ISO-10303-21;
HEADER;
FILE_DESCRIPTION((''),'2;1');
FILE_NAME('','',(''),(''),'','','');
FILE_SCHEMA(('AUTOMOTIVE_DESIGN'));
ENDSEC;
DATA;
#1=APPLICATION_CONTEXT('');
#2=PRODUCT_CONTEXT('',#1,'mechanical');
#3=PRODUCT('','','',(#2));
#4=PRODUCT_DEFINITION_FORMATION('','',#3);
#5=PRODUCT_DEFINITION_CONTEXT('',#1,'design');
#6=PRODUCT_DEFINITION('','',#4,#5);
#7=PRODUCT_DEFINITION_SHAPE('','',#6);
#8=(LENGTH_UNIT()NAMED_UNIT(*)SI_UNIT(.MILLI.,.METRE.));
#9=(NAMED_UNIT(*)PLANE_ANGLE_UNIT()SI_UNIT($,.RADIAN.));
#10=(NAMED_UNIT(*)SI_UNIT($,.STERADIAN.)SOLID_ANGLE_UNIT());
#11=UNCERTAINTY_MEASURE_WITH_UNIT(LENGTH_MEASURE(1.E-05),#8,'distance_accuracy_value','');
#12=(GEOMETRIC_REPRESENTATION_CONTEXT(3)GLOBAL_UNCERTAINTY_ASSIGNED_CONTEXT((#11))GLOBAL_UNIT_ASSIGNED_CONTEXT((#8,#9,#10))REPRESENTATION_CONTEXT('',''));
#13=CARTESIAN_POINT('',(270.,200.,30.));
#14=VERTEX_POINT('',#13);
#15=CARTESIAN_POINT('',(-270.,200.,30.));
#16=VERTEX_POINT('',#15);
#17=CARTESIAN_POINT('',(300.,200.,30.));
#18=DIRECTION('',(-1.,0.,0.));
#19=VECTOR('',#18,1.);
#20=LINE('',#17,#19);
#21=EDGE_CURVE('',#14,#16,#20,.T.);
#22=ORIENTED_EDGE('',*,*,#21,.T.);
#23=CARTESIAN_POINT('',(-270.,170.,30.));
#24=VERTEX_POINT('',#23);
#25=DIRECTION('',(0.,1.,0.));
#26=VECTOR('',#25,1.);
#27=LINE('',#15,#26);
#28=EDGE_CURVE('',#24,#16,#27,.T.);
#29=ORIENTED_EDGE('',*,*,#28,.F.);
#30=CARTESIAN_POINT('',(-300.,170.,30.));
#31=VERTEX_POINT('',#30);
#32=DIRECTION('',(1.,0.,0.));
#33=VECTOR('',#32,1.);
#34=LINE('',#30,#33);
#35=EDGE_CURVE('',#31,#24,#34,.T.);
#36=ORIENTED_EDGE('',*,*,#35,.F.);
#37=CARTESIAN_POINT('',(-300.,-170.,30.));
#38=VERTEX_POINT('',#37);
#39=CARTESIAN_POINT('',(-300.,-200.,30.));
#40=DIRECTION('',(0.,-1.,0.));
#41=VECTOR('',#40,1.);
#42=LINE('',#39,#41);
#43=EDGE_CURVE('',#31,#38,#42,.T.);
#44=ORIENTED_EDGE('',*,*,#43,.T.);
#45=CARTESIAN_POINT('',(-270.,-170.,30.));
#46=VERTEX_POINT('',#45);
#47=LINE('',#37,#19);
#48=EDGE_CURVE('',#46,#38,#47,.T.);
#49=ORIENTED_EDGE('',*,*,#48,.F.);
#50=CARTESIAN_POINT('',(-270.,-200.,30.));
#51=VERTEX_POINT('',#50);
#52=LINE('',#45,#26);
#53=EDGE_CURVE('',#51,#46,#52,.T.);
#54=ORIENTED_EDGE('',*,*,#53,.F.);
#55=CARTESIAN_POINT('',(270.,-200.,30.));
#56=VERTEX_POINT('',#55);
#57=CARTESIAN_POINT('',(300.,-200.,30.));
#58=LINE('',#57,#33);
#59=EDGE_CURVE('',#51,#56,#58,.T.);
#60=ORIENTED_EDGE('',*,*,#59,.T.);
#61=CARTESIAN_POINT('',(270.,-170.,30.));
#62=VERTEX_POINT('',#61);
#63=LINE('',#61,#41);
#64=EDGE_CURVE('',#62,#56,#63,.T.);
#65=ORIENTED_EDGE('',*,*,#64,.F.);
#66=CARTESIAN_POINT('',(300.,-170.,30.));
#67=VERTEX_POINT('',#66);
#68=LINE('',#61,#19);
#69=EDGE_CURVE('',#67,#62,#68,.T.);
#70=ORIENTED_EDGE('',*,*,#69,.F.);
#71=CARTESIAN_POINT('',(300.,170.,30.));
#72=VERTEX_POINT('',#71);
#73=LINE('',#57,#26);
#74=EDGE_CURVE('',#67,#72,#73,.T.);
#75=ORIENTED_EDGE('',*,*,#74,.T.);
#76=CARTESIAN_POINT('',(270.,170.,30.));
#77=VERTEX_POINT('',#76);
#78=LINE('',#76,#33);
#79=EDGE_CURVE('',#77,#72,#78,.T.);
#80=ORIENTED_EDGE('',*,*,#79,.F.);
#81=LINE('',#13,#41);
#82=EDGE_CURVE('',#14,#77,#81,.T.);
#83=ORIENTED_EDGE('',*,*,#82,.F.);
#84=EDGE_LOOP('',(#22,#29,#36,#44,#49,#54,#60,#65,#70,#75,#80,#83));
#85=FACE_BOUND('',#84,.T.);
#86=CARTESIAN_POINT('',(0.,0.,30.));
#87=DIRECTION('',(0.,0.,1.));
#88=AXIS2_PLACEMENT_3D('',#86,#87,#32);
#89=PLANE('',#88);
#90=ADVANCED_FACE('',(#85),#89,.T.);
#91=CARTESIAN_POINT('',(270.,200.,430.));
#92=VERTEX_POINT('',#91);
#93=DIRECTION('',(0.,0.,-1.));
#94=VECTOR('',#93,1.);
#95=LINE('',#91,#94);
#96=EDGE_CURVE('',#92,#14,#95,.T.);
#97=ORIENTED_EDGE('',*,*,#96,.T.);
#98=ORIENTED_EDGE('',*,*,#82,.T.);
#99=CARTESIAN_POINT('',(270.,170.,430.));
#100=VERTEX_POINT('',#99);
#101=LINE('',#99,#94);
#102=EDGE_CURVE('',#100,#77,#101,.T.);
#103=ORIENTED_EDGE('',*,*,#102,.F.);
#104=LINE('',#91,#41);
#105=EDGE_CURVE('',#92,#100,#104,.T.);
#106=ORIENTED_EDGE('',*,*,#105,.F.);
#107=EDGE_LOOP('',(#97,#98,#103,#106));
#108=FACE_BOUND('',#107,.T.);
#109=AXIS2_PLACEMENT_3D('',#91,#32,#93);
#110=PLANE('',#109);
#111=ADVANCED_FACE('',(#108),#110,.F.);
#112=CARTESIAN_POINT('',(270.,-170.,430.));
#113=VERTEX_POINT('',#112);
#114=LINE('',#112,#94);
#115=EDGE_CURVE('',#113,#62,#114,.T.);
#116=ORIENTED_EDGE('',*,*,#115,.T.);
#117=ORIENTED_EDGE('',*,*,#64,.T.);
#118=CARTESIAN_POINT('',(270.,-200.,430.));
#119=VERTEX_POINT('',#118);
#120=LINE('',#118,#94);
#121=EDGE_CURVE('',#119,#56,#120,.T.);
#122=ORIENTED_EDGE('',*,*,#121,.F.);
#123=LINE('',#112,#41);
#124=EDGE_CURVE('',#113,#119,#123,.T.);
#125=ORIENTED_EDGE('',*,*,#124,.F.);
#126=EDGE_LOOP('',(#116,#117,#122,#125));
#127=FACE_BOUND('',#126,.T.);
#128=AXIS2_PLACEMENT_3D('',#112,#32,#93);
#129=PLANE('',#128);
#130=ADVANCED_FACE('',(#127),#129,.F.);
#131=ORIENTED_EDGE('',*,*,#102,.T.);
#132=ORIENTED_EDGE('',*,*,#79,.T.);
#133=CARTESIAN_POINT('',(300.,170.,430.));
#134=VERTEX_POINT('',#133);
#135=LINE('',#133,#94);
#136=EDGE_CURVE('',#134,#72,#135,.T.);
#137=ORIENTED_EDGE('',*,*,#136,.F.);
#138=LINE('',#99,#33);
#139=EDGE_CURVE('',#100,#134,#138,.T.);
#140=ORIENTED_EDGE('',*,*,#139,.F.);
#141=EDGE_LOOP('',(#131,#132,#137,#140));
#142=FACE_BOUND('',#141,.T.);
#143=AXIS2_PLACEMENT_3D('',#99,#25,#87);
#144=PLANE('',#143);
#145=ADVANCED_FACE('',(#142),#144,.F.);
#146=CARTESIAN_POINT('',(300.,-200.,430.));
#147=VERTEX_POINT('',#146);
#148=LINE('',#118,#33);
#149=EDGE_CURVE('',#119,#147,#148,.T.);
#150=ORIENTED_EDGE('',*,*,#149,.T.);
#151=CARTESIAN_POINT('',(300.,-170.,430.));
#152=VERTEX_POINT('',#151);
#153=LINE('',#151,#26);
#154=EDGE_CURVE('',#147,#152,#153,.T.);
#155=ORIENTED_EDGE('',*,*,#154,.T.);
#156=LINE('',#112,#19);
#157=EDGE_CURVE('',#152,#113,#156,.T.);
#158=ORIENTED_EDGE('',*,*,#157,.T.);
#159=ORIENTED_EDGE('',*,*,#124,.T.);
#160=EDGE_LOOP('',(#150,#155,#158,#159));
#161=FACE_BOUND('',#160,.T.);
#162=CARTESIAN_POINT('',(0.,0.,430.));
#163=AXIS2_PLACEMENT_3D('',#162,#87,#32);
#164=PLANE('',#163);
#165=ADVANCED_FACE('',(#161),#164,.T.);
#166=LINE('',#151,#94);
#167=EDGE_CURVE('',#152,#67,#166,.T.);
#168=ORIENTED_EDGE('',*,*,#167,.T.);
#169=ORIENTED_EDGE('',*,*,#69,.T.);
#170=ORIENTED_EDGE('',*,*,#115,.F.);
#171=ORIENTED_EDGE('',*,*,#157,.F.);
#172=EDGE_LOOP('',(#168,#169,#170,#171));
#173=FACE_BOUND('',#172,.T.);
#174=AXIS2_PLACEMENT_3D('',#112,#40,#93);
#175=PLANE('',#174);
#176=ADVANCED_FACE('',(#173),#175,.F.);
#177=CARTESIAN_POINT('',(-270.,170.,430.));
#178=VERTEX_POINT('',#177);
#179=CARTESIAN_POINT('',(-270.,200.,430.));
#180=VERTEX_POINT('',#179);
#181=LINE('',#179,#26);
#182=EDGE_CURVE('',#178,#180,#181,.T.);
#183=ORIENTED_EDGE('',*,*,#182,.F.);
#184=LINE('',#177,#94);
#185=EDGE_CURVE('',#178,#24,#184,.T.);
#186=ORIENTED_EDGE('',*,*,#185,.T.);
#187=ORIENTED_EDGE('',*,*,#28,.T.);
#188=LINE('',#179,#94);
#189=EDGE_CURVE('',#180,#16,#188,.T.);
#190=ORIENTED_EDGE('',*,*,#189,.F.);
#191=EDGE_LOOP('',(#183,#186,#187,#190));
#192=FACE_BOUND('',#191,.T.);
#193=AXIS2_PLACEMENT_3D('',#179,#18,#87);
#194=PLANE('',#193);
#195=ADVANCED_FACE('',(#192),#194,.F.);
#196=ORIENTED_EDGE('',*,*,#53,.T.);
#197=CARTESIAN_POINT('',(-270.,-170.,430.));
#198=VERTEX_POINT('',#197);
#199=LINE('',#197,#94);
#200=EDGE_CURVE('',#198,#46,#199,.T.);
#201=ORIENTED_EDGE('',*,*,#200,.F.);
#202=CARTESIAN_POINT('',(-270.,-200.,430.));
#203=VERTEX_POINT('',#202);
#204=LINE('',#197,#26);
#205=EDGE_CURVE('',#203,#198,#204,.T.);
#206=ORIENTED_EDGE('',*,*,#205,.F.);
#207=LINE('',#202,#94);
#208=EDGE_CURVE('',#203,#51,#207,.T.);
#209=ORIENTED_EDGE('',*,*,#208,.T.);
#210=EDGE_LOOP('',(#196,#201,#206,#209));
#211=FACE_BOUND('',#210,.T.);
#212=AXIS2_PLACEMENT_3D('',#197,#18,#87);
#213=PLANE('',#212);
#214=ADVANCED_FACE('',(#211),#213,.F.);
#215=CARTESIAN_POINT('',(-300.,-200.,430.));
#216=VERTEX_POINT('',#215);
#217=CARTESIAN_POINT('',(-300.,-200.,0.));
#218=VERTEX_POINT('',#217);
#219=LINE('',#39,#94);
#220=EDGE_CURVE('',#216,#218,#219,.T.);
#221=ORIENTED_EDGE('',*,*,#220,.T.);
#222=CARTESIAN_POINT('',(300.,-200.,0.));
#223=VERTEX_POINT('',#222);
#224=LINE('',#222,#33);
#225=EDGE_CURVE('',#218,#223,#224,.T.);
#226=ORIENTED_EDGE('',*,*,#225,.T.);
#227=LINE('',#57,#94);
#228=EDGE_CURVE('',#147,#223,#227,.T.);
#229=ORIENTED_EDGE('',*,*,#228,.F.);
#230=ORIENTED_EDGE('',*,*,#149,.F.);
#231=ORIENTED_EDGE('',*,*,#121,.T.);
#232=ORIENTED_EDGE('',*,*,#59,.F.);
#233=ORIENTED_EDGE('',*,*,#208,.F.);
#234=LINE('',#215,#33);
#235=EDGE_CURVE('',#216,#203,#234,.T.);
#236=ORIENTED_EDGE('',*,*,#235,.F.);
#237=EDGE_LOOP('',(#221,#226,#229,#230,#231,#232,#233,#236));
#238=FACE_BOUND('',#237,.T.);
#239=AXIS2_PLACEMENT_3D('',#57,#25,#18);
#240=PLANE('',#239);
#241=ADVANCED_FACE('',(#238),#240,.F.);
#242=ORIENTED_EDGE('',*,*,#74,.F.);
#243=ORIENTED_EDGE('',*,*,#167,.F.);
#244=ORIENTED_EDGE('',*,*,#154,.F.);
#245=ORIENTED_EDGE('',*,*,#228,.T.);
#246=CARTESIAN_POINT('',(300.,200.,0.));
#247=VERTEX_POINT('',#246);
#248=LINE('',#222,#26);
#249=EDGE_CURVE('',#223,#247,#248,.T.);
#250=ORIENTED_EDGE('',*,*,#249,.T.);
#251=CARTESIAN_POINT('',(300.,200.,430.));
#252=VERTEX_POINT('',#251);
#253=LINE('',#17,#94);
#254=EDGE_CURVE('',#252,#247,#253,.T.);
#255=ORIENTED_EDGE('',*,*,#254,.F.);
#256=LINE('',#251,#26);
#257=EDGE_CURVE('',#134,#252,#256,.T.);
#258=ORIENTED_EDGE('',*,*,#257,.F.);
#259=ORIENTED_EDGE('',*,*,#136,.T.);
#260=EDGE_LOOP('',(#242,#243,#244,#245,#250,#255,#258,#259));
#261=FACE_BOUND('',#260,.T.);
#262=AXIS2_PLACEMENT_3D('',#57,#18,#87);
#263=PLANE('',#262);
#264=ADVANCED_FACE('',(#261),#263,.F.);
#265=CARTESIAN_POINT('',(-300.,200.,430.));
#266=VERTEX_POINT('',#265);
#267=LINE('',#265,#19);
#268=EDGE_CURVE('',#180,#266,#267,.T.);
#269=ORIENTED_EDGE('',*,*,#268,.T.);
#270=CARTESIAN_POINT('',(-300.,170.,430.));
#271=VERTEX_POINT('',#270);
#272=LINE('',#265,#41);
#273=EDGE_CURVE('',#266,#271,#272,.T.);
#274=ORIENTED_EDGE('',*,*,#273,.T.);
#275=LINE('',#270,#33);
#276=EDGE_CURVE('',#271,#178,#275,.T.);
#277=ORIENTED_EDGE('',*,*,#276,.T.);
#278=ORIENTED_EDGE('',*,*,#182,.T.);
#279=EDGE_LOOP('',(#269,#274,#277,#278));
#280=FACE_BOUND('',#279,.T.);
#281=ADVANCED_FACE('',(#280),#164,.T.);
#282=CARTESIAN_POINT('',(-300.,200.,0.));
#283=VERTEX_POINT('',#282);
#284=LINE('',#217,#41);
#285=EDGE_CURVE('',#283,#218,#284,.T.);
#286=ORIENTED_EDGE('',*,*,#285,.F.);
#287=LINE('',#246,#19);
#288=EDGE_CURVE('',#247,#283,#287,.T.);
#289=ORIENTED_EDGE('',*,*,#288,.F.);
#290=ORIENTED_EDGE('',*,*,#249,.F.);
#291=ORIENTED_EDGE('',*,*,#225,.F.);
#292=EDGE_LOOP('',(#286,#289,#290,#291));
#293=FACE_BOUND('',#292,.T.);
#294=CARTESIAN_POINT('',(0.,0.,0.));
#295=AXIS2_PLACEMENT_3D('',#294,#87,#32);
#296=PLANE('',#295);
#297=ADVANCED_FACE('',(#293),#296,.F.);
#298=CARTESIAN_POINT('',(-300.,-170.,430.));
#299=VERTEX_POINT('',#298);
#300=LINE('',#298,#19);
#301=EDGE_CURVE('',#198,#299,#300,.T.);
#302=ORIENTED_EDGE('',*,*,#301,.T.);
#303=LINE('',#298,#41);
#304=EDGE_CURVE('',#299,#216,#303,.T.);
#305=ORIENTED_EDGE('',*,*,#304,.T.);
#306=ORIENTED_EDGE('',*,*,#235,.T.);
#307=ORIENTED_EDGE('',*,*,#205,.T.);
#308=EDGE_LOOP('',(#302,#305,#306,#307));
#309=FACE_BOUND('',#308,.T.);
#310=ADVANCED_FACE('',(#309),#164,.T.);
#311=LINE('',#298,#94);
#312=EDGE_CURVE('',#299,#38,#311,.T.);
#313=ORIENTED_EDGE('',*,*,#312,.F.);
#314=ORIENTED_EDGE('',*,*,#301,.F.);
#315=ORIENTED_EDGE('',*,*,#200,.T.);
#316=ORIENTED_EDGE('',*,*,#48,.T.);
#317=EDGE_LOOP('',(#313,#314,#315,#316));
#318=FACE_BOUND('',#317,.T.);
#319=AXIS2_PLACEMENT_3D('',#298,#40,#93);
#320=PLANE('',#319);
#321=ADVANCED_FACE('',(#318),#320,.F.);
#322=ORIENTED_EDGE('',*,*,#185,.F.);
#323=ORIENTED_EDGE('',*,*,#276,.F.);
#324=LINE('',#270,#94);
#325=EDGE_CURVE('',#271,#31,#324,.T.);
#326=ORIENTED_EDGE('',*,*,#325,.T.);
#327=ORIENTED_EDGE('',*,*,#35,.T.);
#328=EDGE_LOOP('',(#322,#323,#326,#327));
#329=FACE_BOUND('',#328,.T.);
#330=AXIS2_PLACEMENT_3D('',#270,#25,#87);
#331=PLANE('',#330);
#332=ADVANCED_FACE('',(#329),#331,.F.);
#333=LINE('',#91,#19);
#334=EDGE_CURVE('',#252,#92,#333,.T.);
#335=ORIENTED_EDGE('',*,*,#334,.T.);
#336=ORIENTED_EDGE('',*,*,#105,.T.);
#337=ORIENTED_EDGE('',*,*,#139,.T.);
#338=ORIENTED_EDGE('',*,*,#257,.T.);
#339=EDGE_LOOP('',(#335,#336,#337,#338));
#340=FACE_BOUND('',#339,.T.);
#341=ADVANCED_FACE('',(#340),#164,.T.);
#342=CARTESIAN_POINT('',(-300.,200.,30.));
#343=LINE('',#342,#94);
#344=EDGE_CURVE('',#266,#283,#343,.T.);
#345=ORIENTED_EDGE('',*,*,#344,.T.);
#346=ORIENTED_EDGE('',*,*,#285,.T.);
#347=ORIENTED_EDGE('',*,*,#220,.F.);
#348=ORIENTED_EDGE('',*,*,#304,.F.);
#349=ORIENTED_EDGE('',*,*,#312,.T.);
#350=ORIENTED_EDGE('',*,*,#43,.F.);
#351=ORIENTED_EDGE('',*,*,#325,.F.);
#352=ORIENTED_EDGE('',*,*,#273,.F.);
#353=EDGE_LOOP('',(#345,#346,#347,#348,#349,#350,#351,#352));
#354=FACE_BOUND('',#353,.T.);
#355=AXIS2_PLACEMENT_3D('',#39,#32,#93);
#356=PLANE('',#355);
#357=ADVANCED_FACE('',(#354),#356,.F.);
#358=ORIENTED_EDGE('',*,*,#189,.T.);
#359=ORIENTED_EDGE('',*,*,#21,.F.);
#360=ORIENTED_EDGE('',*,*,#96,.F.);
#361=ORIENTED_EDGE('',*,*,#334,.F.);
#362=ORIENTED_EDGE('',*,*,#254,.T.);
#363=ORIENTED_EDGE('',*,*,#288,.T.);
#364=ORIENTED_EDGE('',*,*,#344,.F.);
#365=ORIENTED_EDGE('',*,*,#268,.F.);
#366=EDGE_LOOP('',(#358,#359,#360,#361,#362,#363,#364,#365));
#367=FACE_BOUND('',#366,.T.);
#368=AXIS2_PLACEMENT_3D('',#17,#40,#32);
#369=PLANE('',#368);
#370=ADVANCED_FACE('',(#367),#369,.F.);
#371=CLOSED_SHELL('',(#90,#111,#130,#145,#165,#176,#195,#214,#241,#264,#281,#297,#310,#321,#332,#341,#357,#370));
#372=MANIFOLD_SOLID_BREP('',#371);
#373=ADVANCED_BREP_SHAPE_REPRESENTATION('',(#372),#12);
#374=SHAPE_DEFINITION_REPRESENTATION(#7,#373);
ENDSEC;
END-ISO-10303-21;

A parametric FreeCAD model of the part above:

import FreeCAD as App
import Part
import Sketcher
Q = App.Units.Quantity


def add_polygon(sketch, points):
    """Adds a closed chain of lines whose ends are joined by coincident constraints."""
    first, n = sketch.GeometryCount, len(points)
    for a, b in zip(points, points[1:] + points[:1]):
        sketch.addGeometry(Part.LineSegment(App.Vector(*a, 0), App.Vector(*b, 0)), False)
    for i in range(n):
        sketch.addConstraint(Sketcher.Constraint("Coincident", first + i, 2, first + (i + 1) % n, 1))

doc = App.newDocument("Part")
params = doc.addObject("Spreadsheet::Sheet", "Params")
for row, (alias, value) in enumerate([
    ("sketch1_width", "600 mm"),
    ("sketch1_height", "400 mm"),
    ("pad1_length", "30 mm"),
    ("sketch2_width", "30 mm"),
    ("pad2_length", "400 mm"),
], start=1):
    params.set(f"A{row}", alias)
    params.set(f"B{row}", "=" + value)
    params.setAlias(f"B{row}", alias)

body = doc.addObject("PartDesign::Body", "Body")

# Sketch on XY plane
sketch1 = doc.addObject("Sketcher::SketchObject", "Sketch")
body.addObject(sketch1)
sketch1.AttachmentSupport = (doc.XY_Plane, [""])
sketch1.MapMode = "FlatFace"
add_polygon(sketch1, [(-300, 200), (-300, -200), (300, -200), (300, 200)])  # lines 0-3
sketch1.addConstraint([
    Sketcher.Constraint("Vertical", 0),
    Sketcher.Constraint("Horizontal", 1),
    Sketcher.Constraint("Vertical", 2),
    Sketcher.Constraint("Horizontal", 3),
    Sketcher.Constraint("Symmetric", 0, 2, 2, 2, -1, 1),
    Sketcher.Constraint("DistanceX", 1, 1, 1, 2, Q("600 mm")),
    Sketcher.Constraint("DistanceY", 0, 2, 0, 1, Q("400 mm")),
])
sketch1.setExpression("Constraints[9]", "Params.sketch1_width")
sketch1.setExpression("Constraints[10]", "Params.sketch1_height")
pad1 = doc.addObject("PartDesign::Pad", "Pad")
body.addObject(pad1)
pad1.Profile = sketch1
pad1.setExpression("Length", "Params.pad1_length")

# Sketch on XY plane
sketch2 = doc.addObject("Sketcher::SketchObject", "Sketch001")
body.addObject(sketch2)
sketch2.AttachmentSupport = (doc.XY_Plane, [""])
sketch2.MapMode = "FlatFace"
sketch2.AttachmentOffset = App.Placement(App.Vector(0, 0, 30), App.Rotation())
add_polygon(sketch2, [(270, 200), (270, 170), (300, 170), (300, 200)])  # lines 0-3
add_polygon(sketch2, [(-300, 200), (-300, 170), (-270, 170), (-270, 200)])  # lines 4-7
add_polygon(sketch2, [(270, -170), (270, -200), (300, -200), (300, -170)])  # lines 8-11
add_polygon(sketch2, [(-300, -170), (-300, -200), (-270, -200), (-270, -170)])  # lines 12-15
sketch2.addConstraint([
    Sketcher.Constraint("Vertical", 0),
    Sketcher.Constraint("Horizontal", 1),
    Sketcher.Constraint("Vertical", 2),
    Sketcher.Constraint("Horizontal", 3),
    Sketcher.Constraint("Vertical", 4),
    Sketcher.Constraint("Horizontal", 5),
    Sketcher.Constraint("Vertical", 6),
    Sketcher.Constraint("Horizontal", 7),
    Sketcher.Constraint("Vertical", 8),
    Sketcher.Constraint("Horizontal", 9),
    Sketcher.Constraint("Vertical", 10),
    Sketcher.Constraint("Horizontal", 11),
    Sketcher.Constraint("Vertical", 12),
    Sketcher.Constraint("Horizontal", 13),
    Sketcher.Constraint("Vertical", 14),
    Sketcher.Constraint("Horizontal", 15),
    Sketcher.Constraint("Symmetric", 6, 2, 8, 2, -1, 1),
    Sketcher.Constraint("Symmetric", 4, 2, 10, 2, -1, 1),
    Sketcher.Constraint("Symmetric", 2, 2, 12, 2, -1, 1),
    Sketcher.Constraint("Symmetric", 0, 2, 14, 2, -1, 1),
    Sketcher.Constraint("Symmetric", 1, 2, 4, 2, -2),
    Sketcher.Constraint("Symmetric", 3, 2, 6, 2, -2),
    Sketcher.Constraint("Equal", 15, 0),
    Sketcher.Constraint("DistanceX", 1, 1, 1, 2, Q("30 mm")),
    Sketcher.Constraint("DistanceX", -1, 1, 0, 2, Q("270 mm")),
    Sketcher.Constraint("DistanceY", -1, 1, 0, 2, Q("170 mm")),
])
sketch2.setExpression("Constraints[39]", "Params.sketch2_width")
pad2 = doc.addObject("PartDesign::Pad", "Pad001")
body.addObject(pad2)
pad2.Profile = sketch2
pad2.setExpression("Length", "Params.pad2_length")

doc.recompute()
